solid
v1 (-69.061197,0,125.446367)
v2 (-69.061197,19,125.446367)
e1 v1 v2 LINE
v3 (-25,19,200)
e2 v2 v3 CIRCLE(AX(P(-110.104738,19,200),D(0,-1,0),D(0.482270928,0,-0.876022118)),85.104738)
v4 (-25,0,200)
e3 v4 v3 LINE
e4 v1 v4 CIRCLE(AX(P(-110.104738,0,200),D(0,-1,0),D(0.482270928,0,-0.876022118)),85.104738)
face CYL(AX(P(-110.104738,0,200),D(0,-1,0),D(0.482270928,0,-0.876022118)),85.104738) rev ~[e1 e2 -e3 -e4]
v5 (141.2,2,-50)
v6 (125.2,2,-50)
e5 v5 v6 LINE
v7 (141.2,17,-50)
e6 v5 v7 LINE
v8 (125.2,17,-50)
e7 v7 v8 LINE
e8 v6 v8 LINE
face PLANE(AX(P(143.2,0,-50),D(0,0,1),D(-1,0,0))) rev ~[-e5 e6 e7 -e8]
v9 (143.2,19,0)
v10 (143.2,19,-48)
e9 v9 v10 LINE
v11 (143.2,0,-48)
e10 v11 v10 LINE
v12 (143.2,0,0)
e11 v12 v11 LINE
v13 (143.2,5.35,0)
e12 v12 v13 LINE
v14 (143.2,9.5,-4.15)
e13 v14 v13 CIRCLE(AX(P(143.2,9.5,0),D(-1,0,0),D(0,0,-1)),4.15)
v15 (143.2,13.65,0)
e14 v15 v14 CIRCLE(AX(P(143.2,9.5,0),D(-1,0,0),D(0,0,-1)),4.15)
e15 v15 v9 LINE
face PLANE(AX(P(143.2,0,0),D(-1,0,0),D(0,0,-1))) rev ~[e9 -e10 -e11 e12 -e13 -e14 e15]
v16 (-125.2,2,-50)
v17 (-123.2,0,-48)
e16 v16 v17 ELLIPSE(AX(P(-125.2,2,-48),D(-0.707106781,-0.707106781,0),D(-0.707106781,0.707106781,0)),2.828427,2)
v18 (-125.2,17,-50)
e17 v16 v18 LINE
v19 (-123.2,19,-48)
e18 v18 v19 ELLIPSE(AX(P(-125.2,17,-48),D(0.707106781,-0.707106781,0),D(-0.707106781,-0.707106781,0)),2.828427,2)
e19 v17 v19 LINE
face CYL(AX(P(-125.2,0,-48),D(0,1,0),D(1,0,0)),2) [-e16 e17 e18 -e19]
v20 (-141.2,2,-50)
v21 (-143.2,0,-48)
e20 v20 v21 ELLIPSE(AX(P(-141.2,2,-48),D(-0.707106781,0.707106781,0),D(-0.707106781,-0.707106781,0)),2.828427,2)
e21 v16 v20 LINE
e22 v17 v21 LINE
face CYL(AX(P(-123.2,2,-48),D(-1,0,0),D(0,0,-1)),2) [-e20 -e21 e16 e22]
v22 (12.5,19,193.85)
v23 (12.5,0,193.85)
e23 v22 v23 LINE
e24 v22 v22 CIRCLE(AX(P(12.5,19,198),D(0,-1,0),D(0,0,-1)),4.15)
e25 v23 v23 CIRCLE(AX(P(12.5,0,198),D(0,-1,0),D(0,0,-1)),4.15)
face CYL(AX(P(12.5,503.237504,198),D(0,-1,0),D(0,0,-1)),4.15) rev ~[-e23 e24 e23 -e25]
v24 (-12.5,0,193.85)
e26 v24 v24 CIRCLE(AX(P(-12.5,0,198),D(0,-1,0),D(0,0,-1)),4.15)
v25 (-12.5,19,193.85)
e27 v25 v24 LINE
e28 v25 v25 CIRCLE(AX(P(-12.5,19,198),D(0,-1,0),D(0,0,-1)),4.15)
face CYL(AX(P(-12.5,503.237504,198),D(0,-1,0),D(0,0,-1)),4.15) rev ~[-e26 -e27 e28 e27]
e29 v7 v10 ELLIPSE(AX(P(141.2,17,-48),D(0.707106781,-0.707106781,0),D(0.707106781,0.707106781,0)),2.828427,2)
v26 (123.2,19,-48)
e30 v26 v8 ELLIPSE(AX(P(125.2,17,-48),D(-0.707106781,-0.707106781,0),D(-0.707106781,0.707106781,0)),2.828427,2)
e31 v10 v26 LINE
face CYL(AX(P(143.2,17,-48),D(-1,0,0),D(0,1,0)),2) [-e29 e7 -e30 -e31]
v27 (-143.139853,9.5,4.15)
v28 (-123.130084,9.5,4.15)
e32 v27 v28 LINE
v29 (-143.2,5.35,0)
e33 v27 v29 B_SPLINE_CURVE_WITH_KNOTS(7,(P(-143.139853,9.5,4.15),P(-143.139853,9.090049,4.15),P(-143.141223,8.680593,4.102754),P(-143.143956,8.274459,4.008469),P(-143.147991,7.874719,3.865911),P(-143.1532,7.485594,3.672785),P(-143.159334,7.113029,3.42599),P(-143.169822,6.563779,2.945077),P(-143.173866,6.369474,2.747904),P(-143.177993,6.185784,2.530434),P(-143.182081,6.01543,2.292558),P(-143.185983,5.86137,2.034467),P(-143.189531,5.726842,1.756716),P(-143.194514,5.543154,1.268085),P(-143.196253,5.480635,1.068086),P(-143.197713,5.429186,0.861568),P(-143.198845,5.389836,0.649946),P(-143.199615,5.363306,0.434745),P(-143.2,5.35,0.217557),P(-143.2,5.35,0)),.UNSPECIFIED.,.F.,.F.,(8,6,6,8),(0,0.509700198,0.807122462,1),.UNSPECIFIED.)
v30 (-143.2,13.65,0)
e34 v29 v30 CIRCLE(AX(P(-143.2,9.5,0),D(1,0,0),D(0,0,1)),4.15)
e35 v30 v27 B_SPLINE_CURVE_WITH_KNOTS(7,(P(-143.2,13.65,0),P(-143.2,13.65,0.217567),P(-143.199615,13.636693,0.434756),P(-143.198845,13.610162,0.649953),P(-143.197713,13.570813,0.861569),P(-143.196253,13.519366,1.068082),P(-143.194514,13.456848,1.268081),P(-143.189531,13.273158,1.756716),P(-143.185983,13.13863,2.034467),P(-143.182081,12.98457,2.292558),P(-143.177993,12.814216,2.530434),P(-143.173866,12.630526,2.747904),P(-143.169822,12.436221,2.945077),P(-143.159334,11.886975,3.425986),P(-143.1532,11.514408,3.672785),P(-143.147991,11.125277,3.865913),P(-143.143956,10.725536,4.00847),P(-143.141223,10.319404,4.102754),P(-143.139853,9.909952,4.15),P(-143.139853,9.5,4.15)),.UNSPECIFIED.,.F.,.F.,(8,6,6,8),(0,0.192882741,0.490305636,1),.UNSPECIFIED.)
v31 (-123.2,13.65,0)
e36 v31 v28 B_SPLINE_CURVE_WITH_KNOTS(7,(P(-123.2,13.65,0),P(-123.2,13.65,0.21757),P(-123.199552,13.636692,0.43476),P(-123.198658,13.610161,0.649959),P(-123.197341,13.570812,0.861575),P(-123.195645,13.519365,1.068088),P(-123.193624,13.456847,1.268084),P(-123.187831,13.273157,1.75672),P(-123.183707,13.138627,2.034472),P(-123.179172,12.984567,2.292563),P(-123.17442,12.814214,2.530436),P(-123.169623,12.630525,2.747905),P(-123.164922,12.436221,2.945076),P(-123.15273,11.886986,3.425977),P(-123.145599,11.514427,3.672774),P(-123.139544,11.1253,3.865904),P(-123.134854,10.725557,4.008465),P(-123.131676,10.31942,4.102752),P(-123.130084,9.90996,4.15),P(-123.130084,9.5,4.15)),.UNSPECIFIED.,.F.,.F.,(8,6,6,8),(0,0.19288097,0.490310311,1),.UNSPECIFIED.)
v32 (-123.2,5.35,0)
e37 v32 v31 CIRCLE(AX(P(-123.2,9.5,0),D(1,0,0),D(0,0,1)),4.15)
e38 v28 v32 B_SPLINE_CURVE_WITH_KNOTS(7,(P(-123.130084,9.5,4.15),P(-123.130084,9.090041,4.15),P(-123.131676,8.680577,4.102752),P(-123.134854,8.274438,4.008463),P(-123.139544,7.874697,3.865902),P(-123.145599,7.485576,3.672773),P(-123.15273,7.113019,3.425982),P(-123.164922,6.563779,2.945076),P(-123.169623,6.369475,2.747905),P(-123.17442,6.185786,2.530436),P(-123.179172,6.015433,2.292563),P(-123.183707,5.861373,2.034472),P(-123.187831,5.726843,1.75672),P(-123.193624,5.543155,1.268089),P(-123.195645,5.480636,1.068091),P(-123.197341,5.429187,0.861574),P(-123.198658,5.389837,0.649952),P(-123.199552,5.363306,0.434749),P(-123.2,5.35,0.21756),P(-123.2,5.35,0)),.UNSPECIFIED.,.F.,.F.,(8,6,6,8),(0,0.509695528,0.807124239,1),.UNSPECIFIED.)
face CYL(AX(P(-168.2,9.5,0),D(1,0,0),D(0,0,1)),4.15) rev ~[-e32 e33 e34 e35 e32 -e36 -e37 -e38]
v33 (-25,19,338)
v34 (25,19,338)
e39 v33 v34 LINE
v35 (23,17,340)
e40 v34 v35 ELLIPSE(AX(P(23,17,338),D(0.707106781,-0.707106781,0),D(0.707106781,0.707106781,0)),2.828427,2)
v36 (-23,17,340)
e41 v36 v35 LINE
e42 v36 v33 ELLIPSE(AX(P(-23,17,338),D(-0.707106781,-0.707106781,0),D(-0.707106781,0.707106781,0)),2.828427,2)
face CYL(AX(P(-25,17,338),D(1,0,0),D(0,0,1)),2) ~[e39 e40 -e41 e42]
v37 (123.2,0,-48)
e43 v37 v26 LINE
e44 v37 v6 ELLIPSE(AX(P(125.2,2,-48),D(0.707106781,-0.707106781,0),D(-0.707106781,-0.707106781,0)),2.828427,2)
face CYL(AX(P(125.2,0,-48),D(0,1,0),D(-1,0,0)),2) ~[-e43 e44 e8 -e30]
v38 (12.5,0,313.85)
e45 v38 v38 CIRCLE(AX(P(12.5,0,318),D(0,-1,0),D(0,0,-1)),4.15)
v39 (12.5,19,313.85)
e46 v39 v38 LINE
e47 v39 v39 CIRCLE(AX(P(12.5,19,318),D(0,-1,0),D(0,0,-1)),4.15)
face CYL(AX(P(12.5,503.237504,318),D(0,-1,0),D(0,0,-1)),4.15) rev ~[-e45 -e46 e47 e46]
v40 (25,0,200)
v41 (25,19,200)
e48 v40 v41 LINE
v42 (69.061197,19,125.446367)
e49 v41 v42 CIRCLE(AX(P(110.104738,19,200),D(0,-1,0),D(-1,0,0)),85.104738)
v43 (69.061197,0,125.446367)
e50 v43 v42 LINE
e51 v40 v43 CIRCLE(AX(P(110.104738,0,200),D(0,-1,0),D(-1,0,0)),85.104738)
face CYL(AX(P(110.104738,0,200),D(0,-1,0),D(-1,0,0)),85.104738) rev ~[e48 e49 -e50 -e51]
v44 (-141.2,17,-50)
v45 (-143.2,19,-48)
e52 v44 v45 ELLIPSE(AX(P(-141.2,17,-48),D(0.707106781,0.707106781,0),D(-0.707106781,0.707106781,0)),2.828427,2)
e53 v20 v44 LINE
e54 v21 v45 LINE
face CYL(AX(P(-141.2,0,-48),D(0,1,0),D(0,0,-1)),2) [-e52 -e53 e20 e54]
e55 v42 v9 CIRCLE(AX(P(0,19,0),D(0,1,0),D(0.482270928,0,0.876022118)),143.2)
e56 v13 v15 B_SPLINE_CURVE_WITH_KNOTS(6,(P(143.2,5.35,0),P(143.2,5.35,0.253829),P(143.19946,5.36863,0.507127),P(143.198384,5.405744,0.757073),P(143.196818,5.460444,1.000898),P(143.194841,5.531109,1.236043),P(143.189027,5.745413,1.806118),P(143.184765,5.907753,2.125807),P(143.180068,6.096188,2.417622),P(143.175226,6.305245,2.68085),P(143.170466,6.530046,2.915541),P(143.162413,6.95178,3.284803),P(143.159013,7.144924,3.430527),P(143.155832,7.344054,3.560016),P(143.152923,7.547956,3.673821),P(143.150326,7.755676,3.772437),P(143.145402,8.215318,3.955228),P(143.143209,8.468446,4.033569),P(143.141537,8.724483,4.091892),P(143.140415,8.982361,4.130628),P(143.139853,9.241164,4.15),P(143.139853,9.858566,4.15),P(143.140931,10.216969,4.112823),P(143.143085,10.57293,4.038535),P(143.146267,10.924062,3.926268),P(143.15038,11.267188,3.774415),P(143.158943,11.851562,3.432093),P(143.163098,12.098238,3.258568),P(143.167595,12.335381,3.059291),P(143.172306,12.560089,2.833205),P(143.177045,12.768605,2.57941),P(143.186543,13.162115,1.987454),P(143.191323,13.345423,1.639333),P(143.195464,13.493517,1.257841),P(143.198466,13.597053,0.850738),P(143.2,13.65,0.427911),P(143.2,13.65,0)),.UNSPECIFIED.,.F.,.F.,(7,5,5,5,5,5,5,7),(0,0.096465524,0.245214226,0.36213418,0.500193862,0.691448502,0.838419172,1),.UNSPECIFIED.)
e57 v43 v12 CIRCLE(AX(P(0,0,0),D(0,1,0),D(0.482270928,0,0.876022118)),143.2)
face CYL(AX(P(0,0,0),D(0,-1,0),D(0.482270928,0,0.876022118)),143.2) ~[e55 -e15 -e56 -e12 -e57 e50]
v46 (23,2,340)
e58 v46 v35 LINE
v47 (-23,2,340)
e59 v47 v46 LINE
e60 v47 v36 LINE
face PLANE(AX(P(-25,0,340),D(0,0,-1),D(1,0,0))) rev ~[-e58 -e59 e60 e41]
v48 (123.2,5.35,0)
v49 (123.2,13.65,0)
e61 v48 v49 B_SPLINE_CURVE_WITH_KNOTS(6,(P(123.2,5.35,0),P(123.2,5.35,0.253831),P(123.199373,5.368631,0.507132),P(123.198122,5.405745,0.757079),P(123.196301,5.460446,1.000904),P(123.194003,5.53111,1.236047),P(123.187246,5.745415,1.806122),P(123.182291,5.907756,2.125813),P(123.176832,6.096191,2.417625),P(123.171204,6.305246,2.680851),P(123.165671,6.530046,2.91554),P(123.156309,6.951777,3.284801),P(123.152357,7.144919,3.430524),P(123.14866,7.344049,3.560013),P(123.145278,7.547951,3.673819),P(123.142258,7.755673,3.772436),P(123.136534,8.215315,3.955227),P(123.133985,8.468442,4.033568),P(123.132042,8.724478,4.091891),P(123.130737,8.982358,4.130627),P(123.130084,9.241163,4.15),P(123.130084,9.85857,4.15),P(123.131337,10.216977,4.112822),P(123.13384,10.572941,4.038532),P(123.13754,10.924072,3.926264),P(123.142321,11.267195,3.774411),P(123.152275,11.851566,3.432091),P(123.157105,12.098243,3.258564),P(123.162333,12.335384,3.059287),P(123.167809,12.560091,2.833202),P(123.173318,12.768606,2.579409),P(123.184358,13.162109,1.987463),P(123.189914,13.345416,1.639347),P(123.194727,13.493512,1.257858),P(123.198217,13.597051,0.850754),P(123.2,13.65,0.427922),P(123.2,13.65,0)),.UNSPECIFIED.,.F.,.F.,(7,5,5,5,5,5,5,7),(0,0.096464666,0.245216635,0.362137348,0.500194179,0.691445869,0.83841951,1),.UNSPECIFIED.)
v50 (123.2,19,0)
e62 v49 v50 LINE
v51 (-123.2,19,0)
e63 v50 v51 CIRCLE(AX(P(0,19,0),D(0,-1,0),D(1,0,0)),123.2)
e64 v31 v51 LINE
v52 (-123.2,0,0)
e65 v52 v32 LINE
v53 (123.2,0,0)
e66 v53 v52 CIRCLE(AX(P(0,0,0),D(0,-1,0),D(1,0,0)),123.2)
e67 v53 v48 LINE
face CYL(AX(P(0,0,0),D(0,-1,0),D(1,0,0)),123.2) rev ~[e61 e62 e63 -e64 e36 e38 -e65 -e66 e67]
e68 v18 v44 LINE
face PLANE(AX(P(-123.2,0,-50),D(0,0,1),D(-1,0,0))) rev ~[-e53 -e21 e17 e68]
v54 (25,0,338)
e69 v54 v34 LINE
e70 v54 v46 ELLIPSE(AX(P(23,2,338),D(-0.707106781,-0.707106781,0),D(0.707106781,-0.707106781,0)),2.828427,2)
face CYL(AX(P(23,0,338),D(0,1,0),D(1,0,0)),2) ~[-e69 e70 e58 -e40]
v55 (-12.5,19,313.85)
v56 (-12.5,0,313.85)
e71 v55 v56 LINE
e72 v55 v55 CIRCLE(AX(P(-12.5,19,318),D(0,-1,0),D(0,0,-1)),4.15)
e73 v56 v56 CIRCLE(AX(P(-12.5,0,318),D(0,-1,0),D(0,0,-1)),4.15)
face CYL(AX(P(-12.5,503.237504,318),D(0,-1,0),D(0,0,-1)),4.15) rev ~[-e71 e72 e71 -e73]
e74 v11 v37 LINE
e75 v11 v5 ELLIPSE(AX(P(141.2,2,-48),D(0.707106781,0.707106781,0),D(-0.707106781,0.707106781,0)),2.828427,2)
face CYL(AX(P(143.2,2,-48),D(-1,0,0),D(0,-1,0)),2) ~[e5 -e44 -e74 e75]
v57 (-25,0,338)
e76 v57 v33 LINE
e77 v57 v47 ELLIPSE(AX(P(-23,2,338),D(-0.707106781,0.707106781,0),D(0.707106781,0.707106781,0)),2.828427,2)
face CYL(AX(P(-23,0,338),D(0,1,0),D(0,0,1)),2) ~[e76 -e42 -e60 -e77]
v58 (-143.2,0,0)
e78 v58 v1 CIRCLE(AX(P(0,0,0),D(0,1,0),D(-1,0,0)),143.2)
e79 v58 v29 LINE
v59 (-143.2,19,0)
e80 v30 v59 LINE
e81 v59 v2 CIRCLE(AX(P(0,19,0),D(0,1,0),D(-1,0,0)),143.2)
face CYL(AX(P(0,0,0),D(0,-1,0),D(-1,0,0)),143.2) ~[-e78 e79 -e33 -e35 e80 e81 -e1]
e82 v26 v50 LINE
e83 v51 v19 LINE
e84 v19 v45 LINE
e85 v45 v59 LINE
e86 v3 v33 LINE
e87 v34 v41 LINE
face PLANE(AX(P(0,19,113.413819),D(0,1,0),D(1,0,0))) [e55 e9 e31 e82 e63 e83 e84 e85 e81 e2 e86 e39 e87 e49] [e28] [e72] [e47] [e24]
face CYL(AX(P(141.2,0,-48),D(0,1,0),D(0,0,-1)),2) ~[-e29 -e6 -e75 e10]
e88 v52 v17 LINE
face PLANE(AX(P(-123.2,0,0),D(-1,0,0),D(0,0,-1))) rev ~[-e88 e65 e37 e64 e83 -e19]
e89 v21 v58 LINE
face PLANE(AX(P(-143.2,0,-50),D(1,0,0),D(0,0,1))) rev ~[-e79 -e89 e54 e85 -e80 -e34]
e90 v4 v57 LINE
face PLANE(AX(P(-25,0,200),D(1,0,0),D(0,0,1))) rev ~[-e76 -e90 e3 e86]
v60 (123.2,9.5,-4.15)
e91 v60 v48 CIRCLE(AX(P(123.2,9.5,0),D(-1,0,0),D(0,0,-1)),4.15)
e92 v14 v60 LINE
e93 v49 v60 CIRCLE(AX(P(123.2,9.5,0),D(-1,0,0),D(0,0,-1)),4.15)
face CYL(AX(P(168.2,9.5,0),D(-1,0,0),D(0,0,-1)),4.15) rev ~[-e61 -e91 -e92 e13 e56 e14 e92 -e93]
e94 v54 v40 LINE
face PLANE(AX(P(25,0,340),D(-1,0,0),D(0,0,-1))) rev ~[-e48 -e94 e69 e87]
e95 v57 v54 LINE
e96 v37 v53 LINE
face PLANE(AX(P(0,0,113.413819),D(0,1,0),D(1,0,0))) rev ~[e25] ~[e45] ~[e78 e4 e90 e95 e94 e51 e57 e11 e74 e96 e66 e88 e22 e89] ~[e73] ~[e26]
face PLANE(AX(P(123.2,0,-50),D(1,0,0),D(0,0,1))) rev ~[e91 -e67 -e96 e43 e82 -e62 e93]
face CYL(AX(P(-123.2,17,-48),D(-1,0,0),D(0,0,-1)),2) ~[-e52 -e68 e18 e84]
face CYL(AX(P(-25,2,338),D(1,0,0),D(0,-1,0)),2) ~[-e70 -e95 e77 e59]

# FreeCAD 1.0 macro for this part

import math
import FreeCAD as App
import Part
import Sketcher
from FreeCAD import Vector
Q = App.Units.Quantity


def edges_at(feature, points):
    """Names of the edges that pass closest to the given points."""
    edges = feature.Shape.Edges
    near = lambda p: min(range(len(edges)), key=lambda i: edges[i].distToShape(Part.Vertex(*p))[0])
    return sorted({f"Edge{near(p) + 1}" for p in points})

doc = App.newDocument("Part")
body = doc.addObject("PartDesign::Body", "Body")

sketch1 = doc.addObject("Sketcher::SketchObject", "Sketch")
body.addObject(sketch1)
sketch1.AttachmentSupport = (doc.XZ_Plane, [""])
sketch1.MapMode = "FlatFace"
sketch1.addGeometry(Part.LineSegment(Vector(-25, 200, 0), Vector(-25, 340, 0)), False)
sketch1.addGeometry(Part.LineSegment(Vector(-25, 340, 0), Vector(25, 340, 0)), False)
sketch1.addGeometry(Part.LineSegment(Vector(25, 340, 0), Vector(25, 200, 0)), False)
sketch1.addGeometry(Part.ArcOfCircle(Part.Circle(Vector(110, 200, 0), Vector(0, 0, 1), 85), math.radians(-180), math.radians(-119)), False)
sketch1.addGeometry(Part.ArcOfCircle(Part.Circle(Vector(0, 0, 0), Vector(0, 0, 1), 143), math.radians(0), math.radians(61)), False)
sketch1.addGeometry(Part.LineSegment(Vector(143, 0, 0), Vector(143, -50, 0)), False)
sketch1.addGeometry(Part.LineSegment(Vector(143, -50, 0), Vector(123, -50, 0)), False)
sketch1.addGeometry(Part.LineSegment(Vector(123, -50, 0), Vector(123, 0, 0)), False)
sketch1.addGeometry(Part.ArcOfCircle(Part.Circle(Vector(0, 0, 0), Vector(0, 0, 1), 123), math.radians(0), math.radians(180)), False)
sketch1.addGeometry(Part.LineSegment(Vector(-123, 0, 0), Vector(-123, -50, 0)), False)
sketch1.addGeometry(Part.LineSegment(Vector(-123, -50, 0), Vector(-143, -50, 0)), False)
sketch1.addGeometry(Part.LineSegment(Vector(-143, -50, 0), Vector(-143, 0, 0)), False)
sketch1.addGeometry(Part.ArcOfCircle(Part.Circle(Vector(0, 0, 0), Vector(0, 0, 1), 143), math.radians(119), math.radians(180)), False)
sketch1.addGeometry(Part.ArcOfCircle(Part.Circle(Vector(-110, 200, 0), Vector(0, 0, 1), 85), math.radians(-61), math.radians(0)), False)
sketch1.addConstraint(Sketcher.Constraint("Coincident", 0, 2, 1, 1))
sketch1.addConstraint(Sketcher.Constraint("Coincident", 1, 2, 2, 1))
sketch1.addConstraint(Sketcher.Constraint("Tangent", 2, 2, 3, 1))
sketch1.addConstraint(Sketcher.Constraint("Tangent", 3, 2, 4, 2))
sketch1.addConstraint(Sketcher.Constraint("Tangent", 4, 1, 5, 1))
sketch1.addConstraint(Sketcher.Constraint("Coincident", 5, 2, 6, 1))
sketch1.addConstraint(Sketcher.Constraint("Coincident", 6, 2, 7, 1))
sketch1.addConstraint(Sketcher.Constraint("Tangent", 7, 2, 8, 1))
sketch1.addConstraint(Sketcher.Constraint("Tangent", 8, 2, 9, 1))
sketch1.addConstraint(Sketcher.Constraint("Coincident", 9, 2, 10, 1))
sketch1.addConstraint(Sketcher.Constraint("Coincident", 10, 2, 11, 1))
sketch1.addConstraint(Sketcher.Constraint("Tangent", 11, 2, 12, 2))
sketch1.addConstraint(Sketcher.Constraint("Tangent", 12, 1, 13, 1))
sketch1.addConstraint(Sketcher.Constraint("Tangent", 13, 2, 0, 1))
sketch1.addConstraint(Sketcher.Constraint("Vertical", 0))
sketch1.addConstraint(Sketcher.Constraint("Horizontal", 1))
sketch1.addConstraint(Sketcher.Constraint("Vertical", 2))
sketch1.addConstraint(Sketcher.Constraint("Vertical", 5))
sketch1.addConstraint(Sketcher.Constraint("Horizontal", 6))
sketch1.addConstraint(Sketcher.Constraint("Vertical", 7))
sketch1.addConstraint(Sketcher.Constraint("Vertical", 9))
sketch1.addConstraint(Sketcher.Constraint("Horizontal", 10))
sketch1.addConstraint(Sketcher.Constraint("Vertical", 11))
sketch1.addConstraint(Sketcher.Constraint("Coincident", 4, 3, -1, 1))
sketch1.addConstraint(Sketcher.Constraint("Coincident", 8, 3, -1, 1))
sketch1.addConstraint(Sketcher.Constraint("Coincident", 12, 3, -1, 1))
sketch1.addConstraint(Sketcher.Constraint("Equal", 4, 12))
sketch1.addConstraint(Sketcher.Constraint("Equal", 3, 13))
sketch1.addConstraint(Sketcher.Constraint("Horizontal", 3, 3, 13, 3))
sketch1.addConstraint(Sketcher.Constraint("Horizontal", 6, 2, 9, 2))
sketch1.addConstraint(Sketcher.Constraint("Equal", 1, 5))
sketch1.addConstraint(Sketcher.Constraint("Radius", 4, Q("143.2 mm")))
sketch1.addConstraint(Sketcher.Constraint("Radius", 8, Q("123.2 mm")))
sketch1.addConstraint(Sketcher.Constraint("DistanceX", 1, 1, 1, 2, Q("50 mm")))
sketch1.addConstraint(Sketcher.Constraint("DistanceY", 0, 1, 0, 2, Q("140 mm")))
sketch1.addConstraint(Sketcher.Constraint("DistanceY", -1, 1, 3, 3, Q("200 mm")))
pad1 = doc.addObject("PartDesign::Pad", "Pad")
body.addObject(pad1)
pad1.Profile = sketch1
pad1.Length = 19
pad1.Reversed = True
doc.recompute()

fillet = doc.addObject("PartDesign::Fillet", "Fillet")
body.addObject(fillet)
fillet.Base = (pad1, edges_at(pad1, [
    (-133.2, 19, -50),
    (-133.2, 0, -50),
    (-143.2, 9.5, -50),
    (-123.2, 9.5, -50),
]))
fillet.Radius = 2
doc.recompute()

fillet2 = doc.addObject("PartDesign::Fillet", "Fillet001")
body.addObject(fillet2)
fillet2.Base = (fillet, edges_at(fillet, [
    (133.2, 0, -50),
    (123.2, 9.5, -50),
    (143.2, 9.5, -50),
    (133.2, 19, -50),
]))
fillet2.Radius = 2
doc.recompute()

fillet3 = doc.addObject("PartDesign::Fillet", "Fillet002")
body.addObject(fillet3)
fillet3.Base = (fillet2, edges_at(fillet2, [
    (0, 0, 340),
    (25, 9.5, 340),
    (-25, 9.5, 340),
    (0, 19, 340),
]))
fillet3.Radius = 2

sketch2 = doc.addObject("Sketcher::SketchObject", "Sketch001")
body.addObject(sketch2)
sketch2.AttachmentSupport = (doc.XZ_Plane, [""])
sketch2.MapMode = "FlatFace"
sketch2.AttachmentOffset = App.Placement(Vector(0, 0, -19), App.Rotation())
sketch2.addGeometry(Part.Circle(Vector(-12.5, 318, 0), Vector(0, 0, 1), 4.2), False)
sketch2.addGeometry(Part.Circle(Vector(12.5, 318, 0), Vector(0, 0, 1), 4.2), False)
sketch2.addGeometry(Part.Circle(Vector(12.5, 198, 0), Vector(0, 0, 1), 4.2), False)
sketch2.addGeometry(Part.Circle(Vector(-12.5, 198, 0), Vector(0, 0, 1), 4.2), False)
sketch2.addConstraint(Sketcher.Constraint("Equal", 0, 1))
sketch2.addConstraint(Sketcher.Constraint("Equal", 1, 2))
sketch2.addConstraint(Sketcher.Constraint("Equal", 2, 3))
sketch2.addConstraint(Sketcher.Constraint("Symmetric", 0, 3, 1, 3, -2))
sketch2.addConstraint(Sketcher.Constraint("Symmetric", 2, 3, 3, 3, -2))
sketch2.addConstraint(Sketcher.Constraint("Vertical", 1, 3, 2, 3))
sketch2.addConstraint(Sketcher.Constraint("Diameter", 0, Q("8.3 mm")))
sketch2.addConstraint(Sketcher.Constraint("DistanceY", -1, 1, 0, 3, Q("318 mm")))
sketch2.addConstraint(Sketcher.Constraint("DistanceY", -1, 1, 2, 3, Q("198 mm")))
sketch2.addConstraint(Sketcher.Constraint("DistanceX", 0, 3, 1, 3, Q("25 mm")))
doc.recompute()
hole = doc.addObject("PartDesign::Hole", "Hole")
body.addObject(hole)
hole.Profile = sketch2
hole.ThreadType = "None"
hole.Diameter = 8.3
hole.DepthType = "ThroughAll"
hole.Reversed = True

sketch3 = doc.addObject("Sketcher::SketchObject", "Sketch002")
body.addObject(sketch3)
sketch3.AttachmentSupport = (doc.YZ_Plane, [""])
sketch3.MapMode = "FlatFace"
sketch3.AttachmentOffset = App.Placement(Vector(0, 0, 143.2), App.Rotation())
sketch3.addGeometry(Part.Circle(Vector(9.5, 0, 0), Vector(0, 0, 1), 4.2), False)
sketch3.addConstraint(Sketcher.Constraint("PointOnObject", 0, 3, -1))
sketch3.addConstraint(Sketcher.Constraint("Diameter", 0, Q("8.3 mm")))
sketch3.addConstraint(Sketcher.Constraint("DistanceX", -1, 1, 0, 3, Q("9.5 mm")))
doc.recompute()
hole2 = doc.addObject("PartDesign::Hole", "Hole001")
body.addObject(hole2)
hole2.Profile = sketch3
hole2.ThreadType = "None"
hole2.Diameter = 8.3
hole2.DepthType = "Dimension"
hole2.Depth = 25
hole2.DrillPoint = "Angled"
hole2.DrillPointAngle = 118

sketch4 = doc.addObject("Sketcher::SketchObject", "Sketch003")
body.addObject(sketch4)
sketch4.AttachmentSupport = (doc.YZ_Plane, [""])
sketch4.MapMode = "FlatFace"
sketch4.AttachmentOffset = App.Placement(Vector(0, 0, -143.2), App.Rotation())
sketch4.addGeometry(Part.Circle(Vector(9.5, 0, 0), Vector(0, 0, 1), 4.2), False)
sketch4.addConstraint(Sketcher.Constraint("PointOnObject", 0, 3, -1))
sketch4.addConstraint(Sketcher.Constraint("Diameter", 0, Q("8.3 mm")))
sketch4.addConstraint(Sketcher.Constraint("DistanceX", -1, 1, 0, 3, Q("9.5 mm")))
doc.recompute()
hole3 = doc.addObject("PartDesign::Hole", "Hole002")
body.addObject(hole3)
hole3.Profile = sketch4
hole3.ThreadType = "None"
hole3.Diameter = 8.3
hole3.DepthType = "Dimension"
hole3.Depth = 25
hole3.DrillPoint = "Angled"
hole3.DrillPointAngle = 118
hole3.Reversed = True

doc.recompute()
